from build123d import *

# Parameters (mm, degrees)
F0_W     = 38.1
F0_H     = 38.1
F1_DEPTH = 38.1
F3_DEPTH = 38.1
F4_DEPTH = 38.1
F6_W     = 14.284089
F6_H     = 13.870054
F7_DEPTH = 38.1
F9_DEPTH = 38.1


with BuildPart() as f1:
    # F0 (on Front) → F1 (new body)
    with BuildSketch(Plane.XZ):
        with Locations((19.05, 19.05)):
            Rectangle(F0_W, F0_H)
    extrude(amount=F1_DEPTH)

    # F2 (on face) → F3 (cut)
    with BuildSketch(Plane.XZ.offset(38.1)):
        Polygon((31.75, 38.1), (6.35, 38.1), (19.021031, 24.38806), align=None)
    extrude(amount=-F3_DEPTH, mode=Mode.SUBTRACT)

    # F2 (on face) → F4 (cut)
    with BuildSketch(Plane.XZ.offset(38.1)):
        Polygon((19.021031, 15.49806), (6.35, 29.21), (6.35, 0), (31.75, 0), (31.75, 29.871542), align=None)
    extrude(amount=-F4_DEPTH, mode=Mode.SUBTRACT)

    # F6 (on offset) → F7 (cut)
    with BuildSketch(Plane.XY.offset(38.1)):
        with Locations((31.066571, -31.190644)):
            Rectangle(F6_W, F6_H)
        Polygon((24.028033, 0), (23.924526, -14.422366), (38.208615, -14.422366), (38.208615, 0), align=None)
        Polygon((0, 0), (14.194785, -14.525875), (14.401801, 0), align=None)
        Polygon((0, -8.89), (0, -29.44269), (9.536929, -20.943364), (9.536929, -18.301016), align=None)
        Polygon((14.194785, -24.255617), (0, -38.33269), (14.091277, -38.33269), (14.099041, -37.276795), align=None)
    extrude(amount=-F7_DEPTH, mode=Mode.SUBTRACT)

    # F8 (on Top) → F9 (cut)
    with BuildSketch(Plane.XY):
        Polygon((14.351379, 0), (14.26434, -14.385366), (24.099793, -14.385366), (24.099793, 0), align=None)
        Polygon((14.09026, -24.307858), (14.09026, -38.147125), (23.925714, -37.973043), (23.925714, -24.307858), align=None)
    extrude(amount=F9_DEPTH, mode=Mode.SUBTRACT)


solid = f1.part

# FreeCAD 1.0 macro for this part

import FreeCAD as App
import Part
import Sketcher

V = App.Vector
Q = App.Units.Quantity


def add_polygon(sketch, points):
    """Adds a closed chain of lines whose ends are joined by coincident constraints."""
    first, n = sketch.GeometryCount, len(points)
    for a, b in zip(points, points[1:] + points[:1]):
        sketch.addGeometry(Part.LineSegment(App.Vector(*a, 0), App.Vector(*b, 0)), False)
    for i in range(n):
        sketch.addConstraint(Sketcher.Constraint("Coincident", first + i, 2, first + (i + 1) % n, 1))

doc = App.newDocument("Part")
body = doc.addObject("PartDesign::Body", "Body")
body.AllowCompound = True

# Sketch on XZ plane
sketch1 = body.newObject("Sketcher::SketchObject", "Sketch")
sketch1.AttachmentSupport = (doc.getObject("XZ_Plane"), [""])
sketch1.MapMode = "FlatFace"
add_polygon(sketch1, [(0, 38), (0, 0), (38, 0), (38, 38)])  # lines 0-3
sketch1.addConstraint(Sketcher.Constraint("Vertical", 0))
sketch1.addConstraint(Sketcher.Constraint("Horizontal", 1))
sketch1.addConstraint(Sketcher.Constraint("Vertical", 2))
sketch1.addConstraint(Sketcher.Constraint("Horizontal", 3))
sketch1.addConstraint(Sketcher.Constraint("Coincident", 0, 2, -1, 1))
sketch1.addConstraint(Sketcher.Constraint("Equal", 3, 0))
sketch1.addConstraint(Sketcher.Constraint("DistanceX", 1, 1, 1, 2, Q("1.5 in")))
pad1 = body.newObject("PartDesign::Pad", "Pad")
pad1.Profile = sketch1
pad1.Length = Q("1.5 in")

# Sketch on XZ plane
sketch2 = body.newObject("Sketcher::SketchObject", "Sketch001")
sketch2.AttachmentSupport = (doc.getObject("XZ_Plane"), [""])
sketch2.MapMode = "FlatFace"
sketch2.AttachmentOffset = App.Placement(V(0, 0, 1.5 * 25.4), App.Rotation())
add_polygon(sketch2, [(32, 38), (6, 38), (19, 24)])  # lines 0-2
sketch2.addConstraint(Sketcher.Constraint("Horizontal", 0))
sketch2.addConstraint(Sketcher.Constraint("DistanceX", 0, 2, 0, 1, Q("1 in")))
sketch2.addConstraint(Sketcher.Constraint("DistanceY", -1, 1, 0, 2, Q("1.5 in")))
sketch2.addConstraint(Sketcher.Constraint("DistanceX", -1, 1, 0, 2, Q("0.25 in")))
sketch2.addConstraint(Sketcher.Constraint("Distance", 1, Q("18.670092 mm")))
sketch2.addConstraint(Sketcher.Constraint("Distance", 2, Q("18.709462 mm")))
pocket1 = body.newObject("PartDesign::Pocket", "Pocket")
pocket1.Profile = sketch2
pocket1.Length = Q("1.5 in")

# Sketch on XZ plane
sketch3 = body.newObject("Sketcher::SketchObject", "Sketch002")
sketch3.AttachmentSupport = (doc.getObject("XZ_Plane"), [""])
sketch3.MapMode = "FlatFace"
sketch3.AttachmentOffset = App.Placement(V(0, 0, 1.5 * 25.4), App.Rotation())
add_polygon(sketch3, [(19, 15), (6, 29), (6, 0), (32, 0), (32, 30)])  # lines 0-4
sketch3.addConstraint(Sketcher.Constraint("Vertical", 1))
sketch3.addConstraint(Sketcher.Constraint("Horizontal", 2))
sketch3.addConstraint(Sketcher.Constraint("Vertical", 3))
sketch3.addConstraint(Sketcher.Constraint("PointOnObject", 1, 2, -1))
sketch3.addConstraint(Sketcher.Constraint("DistanceX", 2, 1, 2, 2, Q("1 in")))
sketch3.addConstraint(Sketcher.Constraint("DistanceY", 1, 2, 1, 1, Q("1.15 in")))
sketch3.addConstraint(Sketcher.Constraint("DistanceX", -1, 1, 0, 2, Q("0.25 in")))
sketch3.addConstraint(Sketcher.Constraint("Distance", 0, Q("18.670092 mm")))
sketch3.addConstraint(Sketcher.Constraint("DistanceY", 3, 1, 3, 2, Q("29.871542 mm")))
sketch3.addConstraint(Sketcher.Constraint("DistanceX", -1, 1, 4, 2, Q("19.021031 mm")))
pocket2 = body.newObject("PartDesign::Pocket", "Pocket001")
pocket2.Profile = sketch3
pocket2.Length = Q("1.5 in")

# Sketch on XY plane
sketch4 = body.newObject("Sketcher::SketchObject", "Sketch003")
sketch4.AttachmentSupport = (doc.getObject("XY_Plane"), [""])
sketch4.MapMode = "FlatFace"
sketch4.AttachmentOffset = App.Placement(V(0, 0, 1.5 * 25.4), App.Rotation())
add_polygon(sketch4, [(23.9, -24.3), (23.9, -38.1), (38.2, -38.1), (38.2, -24.3)])  # lines 0-3
add_polygon(sketch4, [(24, 0), (23.9, -14.4), (38.2, -14.4), (38.2, 0)])  # lines 4-7
add_polygon(sketch4, [(0, 0), (14.2, -14.5), (14.4, 0)])  # lines 8-10
add_polygon(sketch4, [(0, -8.9), (0, -29.4), (9.5, -20.9), (9.5, -18.3)])  # lines 11-14
add_polygon(sketch4, [(14.2, -24.3), (0, -38.3), (14.1, -38.3), (14.1, -37.3)])  # lines 15-18
sketch4.addConstraint(Sketcher.Constraint("Vertical", 0))
sketch4.addConstraint(Sketcher.Constraint("Horizontal", 1))
sketch4.addConstraint(Sketcher.Constraint("Vertical", 2))
sketch4.addConstraint(Sketcher.Constraint("Horizontal", 3))
sketch4.addConstraint(Sketcher.Constraint("Horizontal", 5))
sketch4.addConstraint(Sketcher.Constraint("Vertical", 6))
sketch4.addConstraint(Sketcher.Constraint("Horizontal", 7))
sketch4.addConstraint(Sketcher.Constraint("Horizontal", 10))
sketch4.addConstraint(Sketcher.Constraint("Vertical", 11))
sketch4.addConstraint(Sketcher.Constraint("Vertical", 13))
sketch4.addConstraint(Sketcher.Constraint("Horizontal", 16))
sketch4.addConstraint(Sketcher.Constraint("Coincident", 10, 2, -1, 1))
sketch4.addConstraint(Sketcher.Constraint("PointOnObject", 6, 2, -1))
sketch4.addConstraint(Sketcher.Constraint("PointOnObject", 11, 2, -2))
sketch4.addConstraint(Sketcher.Constraint("PointOnObject", 15, 2, -2))
sketch4.addConstraint(Sketcher.Constraint("Parallel", 17, 18))
sketch4.addConstraint(Sketcher.Constraint("Horizontal", 3, 2, 18, 2))
sketch4.addConstraint(Sketcher.Constraint("Vertical", 3, 2, 4, 2))
sketch4.addConstraint(Sketcher.Constraint("Vertical", 2, 2, 5, 2))
sketch4.addConstraint(Sketcher.Constraint("Vertical", 8, 2, 18, 2))
sketch4.addConstraint(Sketcher.Constraint("DistanceX", 10, 2, 10, 1, Q("0.567 in")))
sketch4.addConstraint(Sketcher.Constraint("DistanceY", 14, 2, -1, 1, Q("0.35 in")))
sketch4.addConstraint(Sketcher.Constraint("DistanceY", 15, 2, 11, 2, Q("0.35 in")))
sketch4.addConstraint(Sketcher.Constraint("DistanceX", 1, 1, 1, 2, Q("14.284089 mm")))
sketch4.addConstraint(Sketcher.Constraint("DistanceY", 11, 2, 11, 1, Q("20.55269 mm")))
sketch4.addConstraint(Sketcher.Constraint("DistanceY", 3, 2, 13, 2, Q("5.954601 mm")))
sketch4.addConstraint(Sketcher.Constraint("Distance", 9, Q("14.52735 mm")))
sketch4.addConstraint(Sketcher.Constraint("Distance", 18, Q("13.02153 mm")))
sketch4.addConstraint(Sketcher.Constraint("DistanceX", 7, 2, 7, 1, Q("14.180582 mm")))
sketch4.addConstraint(Sketcher.Constraint("DistanceX", 16, 1, 16, 2, Q("14.091277 mm")))
sketch4.addConstraint(Sketcher.Constraint("DistanceY", 0, 2, 0, 1, Q("13.870054 mm")))
sketch4.addConstraint(Sketcher.Constraint("DistanceY", 6, 1, 6, 2, Q("14.422366 mm")))
sketch4.addConstraint(Sketcher.Constraint("DistanceY", 13, 1, 13, 2, Q("2.642348 mm")))
sketch4.addConstraint(Sketcher.Constraint("DistanceY", 0, 2, -1, 1, Q("38.125671 mm")))
sketch4.addConstraint(Sketcher.Constraint("DistanceX", -1, 1, 12, 2, Q("9.536929 mm")))
sketch4.addConstraint(Sketcher.Constraint("DistanceX", -1, 1, 17, 2, Q("14.099041 mm")))
sketch4.addConstraint(Sketcher.Constraint("DistanceX", 8, 2, 4, 2, Q("9.729741 mm")))
pocket3 = body.newObject("PartDesign::Pocket", "Pocket002")
pocket3.Profile = sketch4
pocket3.Length = Q("1.5 in")

# Sketch on XY plane
sketch5 = body.newObject("Sketcher::SketchObject", "Sketch004")
sketch5.AttachmentSupport = (doc.getObject("XY_Plane"), [""])
sketch5.MapMode = "FlatFace"
add_polygon(sketch5, [(14, 0), (14, -14), (24, -14), (24, 0)])  # lines 0-3
add_polygon(sketch5, [(14, -24), (14, -38), (24, -38), (24, -24)])  # lines 4-7
sketch5.addConstraint(Sketcher.Constraint("Horizontal", 1))
sketch5.addConstraint(Sketcher.Constraint("Vertical", 2))
sketch5.addConstraint(Sketcher.Constraint("Horizontal", 3))
sketch5.addConstraint(Sketcher.Constraint("Vertical", 4))
sketch5.addConstraint(Sketcher.Constraint("Vertical", 6))
sketch5.addConstraint(Sketcher.Constraint("Horizontal", 7))
sketch5.addConstraint(Sketcher.Constraint("PointOnObject", 2, 2, -1))
sketch5.addConstraint(Sketcher.Constraint("Equal", 1, 7))
sketch5.addConstraint(Sketcher.Constraint("Distance", 0, Q("14.385629 mm")))
sketch5.addConstraint(Sketcher.Constraint("DistanceX", 1, 1, 1, 2, Q("9.835453 mm")))
sketch5.addConstraint(Sketcher.Constraint("DistanceX", 3, 2, 3, 1, Q("9.748414 mm")))
sketch5.addConstraint(Sketcher.Constraint("DistanceY", 4, 2, 4, 1, Q("13.839267 mm")))
sketch5.addConstraint(Sketcher.Constraint("DistanceY", 6, 1, 6, 2, Q("13.665185 mm")))
sketch5.addConstraint(Sketcher.Constraint("DistanceX", -1, 1, 0, 2, Q("14.26434 mm")))
sketch5.addConstraint(Sketcher.Constraint("DistanceX", -1, 1, 4, 2, Q("14.09026 mm")))
sketch5.addConstraint(Sketcher.Constraint("DistanceY", 4, 2, 0, 2, Q("23.761759 mm")))
pocket4 = body.newObject("PartDesign::Pocket", "Pocket003")
pocket4.Profile = sketch5
pocket4.Length = Q("1.5 in")
pocket4.Reversed = True

doc.recompute()
